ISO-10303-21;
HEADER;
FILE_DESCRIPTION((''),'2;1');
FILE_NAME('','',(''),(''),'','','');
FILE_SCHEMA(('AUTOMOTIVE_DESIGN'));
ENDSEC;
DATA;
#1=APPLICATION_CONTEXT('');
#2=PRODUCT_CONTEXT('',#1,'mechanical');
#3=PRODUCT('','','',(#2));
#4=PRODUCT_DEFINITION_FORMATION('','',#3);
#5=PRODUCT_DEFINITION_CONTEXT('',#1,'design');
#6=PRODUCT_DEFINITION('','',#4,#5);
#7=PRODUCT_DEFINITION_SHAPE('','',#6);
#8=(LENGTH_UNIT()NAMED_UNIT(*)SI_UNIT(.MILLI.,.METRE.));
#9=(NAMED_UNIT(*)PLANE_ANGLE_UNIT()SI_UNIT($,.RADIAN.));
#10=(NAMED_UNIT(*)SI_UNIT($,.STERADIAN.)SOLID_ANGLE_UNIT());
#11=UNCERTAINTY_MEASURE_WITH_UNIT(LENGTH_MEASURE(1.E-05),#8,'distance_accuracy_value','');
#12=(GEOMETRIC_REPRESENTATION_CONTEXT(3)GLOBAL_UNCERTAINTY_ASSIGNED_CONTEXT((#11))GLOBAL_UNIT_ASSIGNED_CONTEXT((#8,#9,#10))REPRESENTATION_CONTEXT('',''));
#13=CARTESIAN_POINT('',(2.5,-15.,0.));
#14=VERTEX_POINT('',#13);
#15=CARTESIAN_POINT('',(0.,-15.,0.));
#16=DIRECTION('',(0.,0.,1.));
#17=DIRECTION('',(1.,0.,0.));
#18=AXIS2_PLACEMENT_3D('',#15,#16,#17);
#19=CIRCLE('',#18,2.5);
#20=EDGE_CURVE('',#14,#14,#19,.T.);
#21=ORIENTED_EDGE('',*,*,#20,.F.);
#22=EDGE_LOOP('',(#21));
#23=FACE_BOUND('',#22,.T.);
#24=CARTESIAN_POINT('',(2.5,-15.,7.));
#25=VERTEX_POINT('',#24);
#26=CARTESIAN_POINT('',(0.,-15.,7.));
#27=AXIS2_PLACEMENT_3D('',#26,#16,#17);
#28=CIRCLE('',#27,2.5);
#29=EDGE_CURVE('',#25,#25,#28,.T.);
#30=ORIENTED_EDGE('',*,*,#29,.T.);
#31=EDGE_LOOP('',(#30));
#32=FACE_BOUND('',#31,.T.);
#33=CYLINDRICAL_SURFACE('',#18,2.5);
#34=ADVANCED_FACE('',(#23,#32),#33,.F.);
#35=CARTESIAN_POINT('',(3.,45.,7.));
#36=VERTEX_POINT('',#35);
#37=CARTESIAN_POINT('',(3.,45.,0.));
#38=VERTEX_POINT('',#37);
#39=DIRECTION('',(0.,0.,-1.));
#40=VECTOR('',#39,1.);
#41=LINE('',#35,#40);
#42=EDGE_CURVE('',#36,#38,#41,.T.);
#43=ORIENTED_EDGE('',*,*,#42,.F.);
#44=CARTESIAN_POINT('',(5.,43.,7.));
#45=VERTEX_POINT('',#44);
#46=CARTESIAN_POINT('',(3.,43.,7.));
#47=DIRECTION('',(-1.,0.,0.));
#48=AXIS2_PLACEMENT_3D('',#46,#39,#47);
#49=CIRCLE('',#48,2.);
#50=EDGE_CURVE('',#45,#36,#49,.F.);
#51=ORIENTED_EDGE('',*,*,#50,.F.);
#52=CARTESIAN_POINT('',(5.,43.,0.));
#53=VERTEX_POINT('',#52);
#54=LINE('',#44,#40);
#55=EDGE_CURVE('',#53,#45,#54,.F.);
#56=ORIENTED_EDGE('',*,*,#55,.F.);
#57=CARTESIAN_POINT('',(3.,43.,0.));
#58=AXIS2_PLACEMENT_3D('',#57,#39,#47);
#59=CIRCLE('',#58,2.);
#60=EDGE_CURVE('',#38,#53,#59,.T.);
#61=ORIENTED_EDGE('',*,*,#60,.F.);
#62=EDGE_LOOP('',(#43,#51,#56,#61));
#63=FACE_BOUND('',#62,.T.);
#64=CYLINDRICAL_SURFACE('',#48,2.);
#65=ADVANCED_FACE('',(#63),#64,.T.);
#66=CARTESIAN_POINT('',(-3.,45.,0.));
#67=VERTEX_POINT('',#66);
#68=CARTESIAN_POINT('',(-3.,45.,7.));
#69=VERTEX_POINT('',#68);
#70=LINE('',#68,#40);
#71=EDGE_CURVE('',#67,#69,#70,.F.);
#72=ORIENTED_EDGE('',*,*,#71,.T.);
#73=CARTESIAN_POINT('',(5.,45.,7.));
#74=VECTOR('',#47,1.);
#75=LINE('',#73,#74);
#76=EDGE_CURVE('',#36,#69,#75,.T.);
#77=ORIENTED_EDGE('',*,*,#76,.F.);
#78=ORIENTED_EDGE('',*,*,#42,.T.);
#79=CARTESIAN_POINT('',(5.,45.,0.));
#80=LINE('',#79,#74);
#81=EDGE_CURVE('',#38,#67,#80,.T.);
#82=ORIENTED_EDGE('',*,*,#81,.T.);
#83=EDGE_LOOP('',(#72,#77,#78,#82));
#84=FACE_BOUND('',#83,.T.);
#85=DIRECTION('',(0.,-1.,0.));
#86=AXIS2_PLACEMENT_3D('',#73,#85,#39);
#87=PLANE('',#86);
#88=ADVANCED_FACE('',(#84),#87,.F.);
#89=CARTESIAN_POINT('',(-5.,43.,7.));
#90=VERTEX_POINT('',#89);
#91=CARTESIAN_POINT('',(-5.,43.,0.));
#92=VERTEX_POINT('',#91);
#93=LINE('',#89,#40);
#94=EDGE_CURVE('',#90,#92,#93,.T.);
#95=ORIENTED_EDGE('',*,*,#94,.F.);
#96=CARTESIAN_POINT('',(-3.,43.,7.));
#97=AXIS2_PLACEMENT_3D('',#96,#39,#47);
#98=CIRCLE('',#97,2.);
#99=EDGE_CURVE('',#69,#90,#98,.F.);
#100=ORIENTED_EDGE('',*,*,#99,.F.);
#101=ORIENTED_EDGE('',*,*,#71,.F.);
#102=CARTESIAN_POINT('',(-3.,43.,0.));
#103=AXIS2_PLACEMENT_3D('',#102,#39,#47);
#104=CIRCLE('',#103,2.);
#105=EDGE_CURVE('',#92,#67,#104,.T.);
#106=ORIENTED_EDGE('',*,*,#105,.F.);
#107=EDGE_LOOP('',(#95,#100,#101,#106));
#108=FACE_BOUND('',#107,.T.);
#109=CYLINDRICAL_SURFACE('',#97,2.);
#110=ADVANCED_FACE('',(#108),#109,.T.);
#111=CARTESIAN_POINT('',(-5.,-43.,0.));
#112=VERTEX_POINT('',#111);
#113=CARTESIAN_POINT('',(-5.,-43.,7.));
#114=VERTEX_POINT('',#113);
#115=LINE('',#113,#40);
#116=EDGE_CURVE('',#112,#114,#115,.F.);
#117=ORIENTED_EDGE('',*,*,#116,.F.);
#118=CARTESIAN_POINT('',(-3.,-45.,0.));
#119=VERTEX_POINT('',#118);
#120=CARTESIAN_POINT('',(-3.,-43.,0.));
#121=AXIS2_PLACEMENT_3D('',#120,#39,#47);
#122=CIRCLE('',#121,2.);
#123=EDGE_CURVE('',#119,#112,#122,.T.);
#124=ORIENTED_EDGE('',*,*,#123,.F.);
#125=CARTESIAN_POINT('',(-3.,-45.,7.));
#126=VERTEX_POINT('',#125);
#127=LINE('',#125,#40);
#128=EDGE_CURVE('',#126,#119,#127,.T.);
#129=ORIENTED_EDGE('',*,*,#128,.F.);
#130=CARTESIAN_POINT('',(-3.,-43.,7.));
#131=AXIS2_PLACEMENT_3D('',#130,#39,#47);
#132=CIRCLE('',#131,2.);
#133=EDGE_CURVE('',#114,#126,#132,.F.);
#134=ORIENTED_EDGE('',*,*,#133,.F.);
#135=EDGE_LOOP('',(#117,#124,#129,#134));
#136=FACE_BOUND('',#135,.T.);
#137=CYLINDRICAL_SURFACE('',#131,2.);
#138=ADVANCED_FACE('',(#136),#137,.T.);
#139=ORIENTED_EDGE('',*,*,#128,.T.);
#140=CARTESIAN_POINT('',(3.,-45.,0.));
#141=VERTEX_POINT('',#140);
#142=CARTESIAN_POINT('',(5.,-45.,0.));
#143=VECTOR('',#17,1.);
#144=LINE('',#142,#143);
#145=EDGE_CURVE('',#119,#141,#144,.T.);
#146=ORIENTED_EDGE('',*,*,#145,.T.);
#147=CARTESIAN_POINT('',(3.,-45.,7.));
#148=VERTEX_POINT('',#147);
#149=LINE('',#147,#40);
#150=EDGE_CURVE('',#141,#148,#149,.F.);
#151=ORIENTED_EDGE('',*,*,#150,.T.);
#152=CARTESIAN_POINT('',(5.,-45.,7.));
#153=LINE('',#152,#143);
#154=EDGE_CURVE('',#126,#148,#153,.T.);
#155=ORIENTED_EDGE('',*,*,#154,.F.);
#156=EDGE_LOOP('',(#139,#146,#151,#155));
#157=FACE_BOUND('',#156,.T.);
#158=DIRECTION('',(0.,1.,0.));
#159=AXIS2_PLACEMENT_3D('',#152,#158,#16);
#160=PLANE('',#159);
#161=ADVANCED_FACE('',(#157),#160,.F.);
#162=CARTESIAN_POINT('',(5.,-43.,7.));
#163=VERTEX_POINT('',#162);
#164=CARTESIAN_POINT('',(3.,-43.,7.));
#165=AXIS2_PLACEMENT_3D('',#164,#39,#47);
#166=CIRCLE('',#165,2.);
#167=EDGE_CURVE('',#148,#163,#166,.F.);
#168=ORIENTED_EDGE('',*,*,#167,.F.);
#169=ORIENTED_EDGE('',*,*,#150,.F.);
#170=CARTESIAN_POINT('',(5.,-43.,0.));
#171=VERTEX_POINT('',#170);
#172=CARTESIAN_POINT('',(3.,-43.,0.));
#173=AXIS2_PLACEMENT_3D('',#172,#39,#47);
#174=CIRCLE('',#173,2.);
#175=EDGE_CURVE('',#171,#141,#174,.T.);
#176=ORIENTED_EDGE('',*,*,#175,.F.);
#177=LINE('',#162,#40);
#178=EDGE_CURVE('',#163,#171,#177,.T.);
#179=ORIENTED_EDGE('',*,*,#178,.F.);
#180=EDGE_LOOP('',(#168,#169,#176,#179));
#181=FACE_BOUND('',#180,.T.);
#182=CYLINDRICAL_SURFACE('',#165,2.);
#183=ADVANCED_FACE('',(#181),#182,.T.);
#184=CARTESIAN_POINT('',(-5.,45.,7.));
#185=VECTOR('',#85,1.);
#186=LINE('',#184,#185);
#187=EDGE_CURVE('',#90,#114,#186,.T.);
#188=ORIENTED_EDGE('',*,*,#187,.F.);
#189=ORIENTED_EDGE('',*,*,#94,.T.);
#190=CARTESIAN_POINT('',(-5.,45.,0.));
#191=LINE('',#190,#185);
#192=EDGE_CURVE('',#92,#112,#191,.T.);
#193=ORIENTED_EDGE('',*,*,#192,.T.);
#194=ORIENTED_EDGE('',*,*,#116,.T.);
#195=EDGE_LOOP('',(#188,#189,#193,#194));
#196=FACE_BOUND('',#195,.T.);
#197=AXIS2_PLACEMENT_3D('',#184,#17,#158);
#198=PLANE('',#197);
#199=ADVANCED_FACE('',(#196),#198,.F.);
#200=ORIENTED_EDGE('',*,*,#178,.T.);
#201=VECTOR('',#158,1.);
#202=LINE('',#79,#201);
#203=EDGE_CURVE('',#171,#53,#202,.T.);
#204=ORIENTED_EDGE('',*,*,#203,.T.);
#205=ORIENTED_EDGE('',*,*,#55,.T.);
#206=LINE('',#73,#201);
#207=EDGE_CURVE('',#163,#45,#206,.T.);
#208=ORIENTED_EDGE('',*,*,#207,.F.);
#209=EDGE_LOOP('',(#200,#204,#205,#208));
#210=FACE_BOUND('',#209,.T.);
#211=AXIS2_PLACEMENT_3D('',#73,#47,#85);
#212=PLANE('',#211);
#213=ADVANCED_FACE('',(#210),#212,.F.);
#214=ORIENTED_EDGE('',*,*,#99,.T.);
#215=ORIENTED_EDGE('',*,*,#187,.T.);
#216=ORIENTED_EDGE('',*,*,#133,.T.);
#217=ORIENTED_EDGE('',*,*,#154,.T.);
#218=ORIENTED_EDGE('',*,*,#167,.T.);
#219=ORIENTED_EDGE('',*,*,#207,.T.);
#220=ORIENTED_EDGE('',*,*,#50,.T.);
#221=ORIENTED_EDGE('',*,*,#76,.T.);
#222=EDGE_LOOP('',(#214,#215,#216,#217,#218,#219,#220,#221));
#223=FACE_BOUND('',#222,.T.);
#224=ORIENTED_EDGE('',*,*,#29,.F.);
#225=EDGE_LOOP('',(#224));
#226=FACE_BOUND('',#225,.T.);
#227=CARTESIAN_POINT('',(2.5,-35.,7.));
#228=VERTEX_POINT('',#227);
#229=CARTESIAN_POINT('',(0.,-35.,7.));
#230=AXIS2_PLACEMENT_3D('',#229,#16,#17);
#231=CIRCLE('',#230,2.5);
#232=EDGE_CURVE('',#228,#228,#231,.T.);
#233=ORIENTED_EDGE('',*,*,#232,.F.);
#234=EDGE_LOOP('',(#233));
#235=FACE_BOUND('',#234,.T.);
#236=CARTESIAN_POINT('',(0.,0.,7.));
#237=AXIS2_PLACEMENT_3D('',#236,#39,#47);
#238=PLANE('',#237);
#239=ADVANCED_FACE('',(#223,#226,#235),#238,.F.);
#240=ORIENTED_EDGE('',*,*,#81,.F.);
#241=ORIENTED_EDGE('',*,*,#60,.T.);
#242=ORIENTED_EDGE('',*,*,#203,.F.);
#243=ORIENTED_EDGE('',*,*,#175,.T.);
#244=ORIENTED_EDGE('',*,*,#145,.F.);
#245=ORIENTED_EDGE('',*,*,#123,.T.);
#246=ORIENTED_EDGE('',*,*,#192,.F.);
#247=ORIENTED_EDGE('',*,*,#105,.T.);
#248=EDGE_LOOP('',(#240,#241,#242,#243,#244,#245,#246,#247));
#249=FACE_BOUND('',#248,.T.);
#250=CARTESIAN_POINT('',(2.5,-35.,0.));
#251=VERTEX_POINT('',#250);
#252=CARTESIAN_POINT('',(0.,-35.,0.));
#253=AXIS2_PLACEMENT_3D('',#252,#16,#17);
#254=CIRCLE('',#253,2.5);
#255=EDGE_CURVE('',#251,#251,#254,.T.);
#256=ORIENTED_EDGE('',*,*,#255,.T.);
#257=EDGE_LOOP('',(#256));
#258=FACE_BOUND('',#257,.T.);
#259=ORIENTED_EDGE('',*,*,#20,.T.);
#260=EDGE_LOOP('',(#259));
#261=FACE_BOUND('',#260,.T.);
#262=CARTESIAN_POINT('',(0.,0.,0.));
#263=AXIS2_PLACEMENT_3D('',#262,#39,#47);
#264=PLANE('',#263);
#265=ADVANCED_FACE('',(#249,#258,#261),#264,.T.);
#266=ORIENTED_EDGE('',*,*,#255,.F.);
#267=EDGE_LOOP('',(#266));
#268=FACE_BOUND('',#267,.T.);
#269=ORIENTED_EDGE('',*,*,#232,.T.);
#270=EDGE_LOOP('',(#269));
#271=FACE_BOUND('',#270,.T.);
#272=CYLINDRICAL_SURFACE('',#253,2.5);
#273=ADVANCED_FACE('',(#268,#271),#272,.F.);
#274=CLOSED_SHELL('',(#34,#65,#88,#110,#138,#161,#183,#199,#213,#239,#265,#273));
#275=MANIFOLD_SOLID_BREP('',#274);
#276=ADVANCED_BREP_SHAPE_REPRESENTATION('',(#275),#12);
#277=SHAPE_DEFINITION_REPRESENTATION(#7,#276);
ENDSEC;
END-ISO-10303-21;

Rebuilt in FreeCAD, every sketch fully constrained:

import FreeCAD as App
import Part
import Sketcher

V = App.Vector
Q = App.Units.Quantity


def edges_at(feature, points):
    """Names of the edges that pass closest to the given points."""
    edges = feature.Shape.Edges
    near = lambda p: min(range(len(edges)), key=lambda i: edges[i].distToShape(Part.Vertex(*p))[0])
    return sorted({f"Edge{near(p) + 1}" for p in points})


def add_polygon(sketch, points):
    """Adds a closed chain of lines whose ends are joined by coincident constraints."""
    first, n = sketch.GeometryCount, len(points)
    for a, b in zip(points, points[1:] + points[:1]):
        sketch.addGeometry(Part.LineSegment(App.Vector(*a, 0), App.Vector(*b, 0)), False)
    for i in range(n):
        sketch.addConstraint(Sketcher.Constraint("Coincident", first + i, 2, first + (i + 1) % n, 1))

doc = App.newDocument("Part")
params = doc.addObject("Spreadsheet::Sheet", "Params")
for row, (alias, value) in enumerate([
    ("sketch1_width", "10 mm"),
    ("sketch1_height", "90 mm"),
    ("pad1_length", "7 mm"),
    ("sketch2_diameter", "5 mm"),
    ("fillet_radius", "2 mm"),
], start=1):
    params.set(f"A{row}", alias)
    params.set(f"B{row}", "=" + value)
    params.setAlias(f"B{row}", alias)

body = doc.addObject("PartDesign::Body", "Body")

# Sketch on XY plane
sketch1 = doc.addObject("Sketcher::SketchObject", "Sketch")
body.addObject(sketch1)
sketch1.AttachmentSupport = (doc.XY_Plane, [""])
sketch1.MapMode = "FlatFace"
add_polygon(sketch1, [(-5, 45), (-5, -45), (5, -45), (5, 45)])  # lines 0-3
sketch1.addConstraint([
    Sketcher.Constraint("Vertical", 0),
    Sketcher.Constraint("Horizontal", 1),
    Sketcher.Constraint("Vertical", 2),
    Sketcher.Constraint("Horizontal", 3),
    Sketcher.Constraint("Symmetric", 0, 2, 2, 2, -1, 1),
    Sketcher.Constraint("DistanceX", 1, 1, 1, 2, Q("10 mm")),
    Sketcher.Constraint("DistanceY", 0, 2, 0, 1, Q("90 mm")),
])
sketch1.setExpression("Constraints[9]", "Params.sketch1_width")
sketch1.setExpression("Constraints[10]", "Params.sketch1_height")
pad1 = doc.addObject("PartDesign::Pad", "Pad")
body.addObject(pad1)
pad1.Profile = sketch1
pad1.setExpression("Length", "Params.pad1_length")

# Sketch on XY plane
sketch2 = doc.addObject("Sketcher::SketchObject", "Sketch001")
body.addObject(sketch2)
sketch2.AttachmentSupport = (doc.XY_Plane, [""])
sketch2.MapMode = "FlatFace"
sketch2.AttachmentOffset = App.Placement(V(0, 0, 7), App.Rotation())
sketch2.addGeometry([
    Part.Circle(V(0, -35, 0), V(0, 0, 1), 2.5),
    Part.Circle(V(0, -15, 0), V(0, 0, 1), 2.5),
], False)
sketch2.addConstraint([
    Sketcher.Constraint("Equal", 0, 1),
    Sketcher.Constraint("PointOnObject", 0, 3, -2),
    Sketcher.Constraint("PointOnObject", 1, 3, -2),
    Sketcher.Constraint("Diameter", 0, Q("5 mm")),
    Sketcher.Constraint("DistanceY", 0, 3, -1, 1, Q("35 mm")),
    Sketcher.Constraint("DistanceY", 1, 3, -1, 1, Q("15 mm")),
])
sketch2.setExpression("Constraints[3]", "Params.sketch2_diameter")
pocket1 = doc.addObject("PartDesign::Pocket", "Pocket")
body.addObject(pocket1)
pocket1.Profile = sketch2
pocket1.Type = "ThroughAll"
doc.recompute()

fillet = doc.addObject("PartDesign::Fillet", "Fillet")
body.addObject(fillet)
fillet.Base = (pocket1, edges_at(pocket1, [
    (-5, 45, 3.5),
    (5, 45, 3.5),
    (5, -45, 3.5),
    (-5, -45, 3.5),
]))
fillet.setExpression("Radius", "Params.fillet_radius")

doc.recompute()
